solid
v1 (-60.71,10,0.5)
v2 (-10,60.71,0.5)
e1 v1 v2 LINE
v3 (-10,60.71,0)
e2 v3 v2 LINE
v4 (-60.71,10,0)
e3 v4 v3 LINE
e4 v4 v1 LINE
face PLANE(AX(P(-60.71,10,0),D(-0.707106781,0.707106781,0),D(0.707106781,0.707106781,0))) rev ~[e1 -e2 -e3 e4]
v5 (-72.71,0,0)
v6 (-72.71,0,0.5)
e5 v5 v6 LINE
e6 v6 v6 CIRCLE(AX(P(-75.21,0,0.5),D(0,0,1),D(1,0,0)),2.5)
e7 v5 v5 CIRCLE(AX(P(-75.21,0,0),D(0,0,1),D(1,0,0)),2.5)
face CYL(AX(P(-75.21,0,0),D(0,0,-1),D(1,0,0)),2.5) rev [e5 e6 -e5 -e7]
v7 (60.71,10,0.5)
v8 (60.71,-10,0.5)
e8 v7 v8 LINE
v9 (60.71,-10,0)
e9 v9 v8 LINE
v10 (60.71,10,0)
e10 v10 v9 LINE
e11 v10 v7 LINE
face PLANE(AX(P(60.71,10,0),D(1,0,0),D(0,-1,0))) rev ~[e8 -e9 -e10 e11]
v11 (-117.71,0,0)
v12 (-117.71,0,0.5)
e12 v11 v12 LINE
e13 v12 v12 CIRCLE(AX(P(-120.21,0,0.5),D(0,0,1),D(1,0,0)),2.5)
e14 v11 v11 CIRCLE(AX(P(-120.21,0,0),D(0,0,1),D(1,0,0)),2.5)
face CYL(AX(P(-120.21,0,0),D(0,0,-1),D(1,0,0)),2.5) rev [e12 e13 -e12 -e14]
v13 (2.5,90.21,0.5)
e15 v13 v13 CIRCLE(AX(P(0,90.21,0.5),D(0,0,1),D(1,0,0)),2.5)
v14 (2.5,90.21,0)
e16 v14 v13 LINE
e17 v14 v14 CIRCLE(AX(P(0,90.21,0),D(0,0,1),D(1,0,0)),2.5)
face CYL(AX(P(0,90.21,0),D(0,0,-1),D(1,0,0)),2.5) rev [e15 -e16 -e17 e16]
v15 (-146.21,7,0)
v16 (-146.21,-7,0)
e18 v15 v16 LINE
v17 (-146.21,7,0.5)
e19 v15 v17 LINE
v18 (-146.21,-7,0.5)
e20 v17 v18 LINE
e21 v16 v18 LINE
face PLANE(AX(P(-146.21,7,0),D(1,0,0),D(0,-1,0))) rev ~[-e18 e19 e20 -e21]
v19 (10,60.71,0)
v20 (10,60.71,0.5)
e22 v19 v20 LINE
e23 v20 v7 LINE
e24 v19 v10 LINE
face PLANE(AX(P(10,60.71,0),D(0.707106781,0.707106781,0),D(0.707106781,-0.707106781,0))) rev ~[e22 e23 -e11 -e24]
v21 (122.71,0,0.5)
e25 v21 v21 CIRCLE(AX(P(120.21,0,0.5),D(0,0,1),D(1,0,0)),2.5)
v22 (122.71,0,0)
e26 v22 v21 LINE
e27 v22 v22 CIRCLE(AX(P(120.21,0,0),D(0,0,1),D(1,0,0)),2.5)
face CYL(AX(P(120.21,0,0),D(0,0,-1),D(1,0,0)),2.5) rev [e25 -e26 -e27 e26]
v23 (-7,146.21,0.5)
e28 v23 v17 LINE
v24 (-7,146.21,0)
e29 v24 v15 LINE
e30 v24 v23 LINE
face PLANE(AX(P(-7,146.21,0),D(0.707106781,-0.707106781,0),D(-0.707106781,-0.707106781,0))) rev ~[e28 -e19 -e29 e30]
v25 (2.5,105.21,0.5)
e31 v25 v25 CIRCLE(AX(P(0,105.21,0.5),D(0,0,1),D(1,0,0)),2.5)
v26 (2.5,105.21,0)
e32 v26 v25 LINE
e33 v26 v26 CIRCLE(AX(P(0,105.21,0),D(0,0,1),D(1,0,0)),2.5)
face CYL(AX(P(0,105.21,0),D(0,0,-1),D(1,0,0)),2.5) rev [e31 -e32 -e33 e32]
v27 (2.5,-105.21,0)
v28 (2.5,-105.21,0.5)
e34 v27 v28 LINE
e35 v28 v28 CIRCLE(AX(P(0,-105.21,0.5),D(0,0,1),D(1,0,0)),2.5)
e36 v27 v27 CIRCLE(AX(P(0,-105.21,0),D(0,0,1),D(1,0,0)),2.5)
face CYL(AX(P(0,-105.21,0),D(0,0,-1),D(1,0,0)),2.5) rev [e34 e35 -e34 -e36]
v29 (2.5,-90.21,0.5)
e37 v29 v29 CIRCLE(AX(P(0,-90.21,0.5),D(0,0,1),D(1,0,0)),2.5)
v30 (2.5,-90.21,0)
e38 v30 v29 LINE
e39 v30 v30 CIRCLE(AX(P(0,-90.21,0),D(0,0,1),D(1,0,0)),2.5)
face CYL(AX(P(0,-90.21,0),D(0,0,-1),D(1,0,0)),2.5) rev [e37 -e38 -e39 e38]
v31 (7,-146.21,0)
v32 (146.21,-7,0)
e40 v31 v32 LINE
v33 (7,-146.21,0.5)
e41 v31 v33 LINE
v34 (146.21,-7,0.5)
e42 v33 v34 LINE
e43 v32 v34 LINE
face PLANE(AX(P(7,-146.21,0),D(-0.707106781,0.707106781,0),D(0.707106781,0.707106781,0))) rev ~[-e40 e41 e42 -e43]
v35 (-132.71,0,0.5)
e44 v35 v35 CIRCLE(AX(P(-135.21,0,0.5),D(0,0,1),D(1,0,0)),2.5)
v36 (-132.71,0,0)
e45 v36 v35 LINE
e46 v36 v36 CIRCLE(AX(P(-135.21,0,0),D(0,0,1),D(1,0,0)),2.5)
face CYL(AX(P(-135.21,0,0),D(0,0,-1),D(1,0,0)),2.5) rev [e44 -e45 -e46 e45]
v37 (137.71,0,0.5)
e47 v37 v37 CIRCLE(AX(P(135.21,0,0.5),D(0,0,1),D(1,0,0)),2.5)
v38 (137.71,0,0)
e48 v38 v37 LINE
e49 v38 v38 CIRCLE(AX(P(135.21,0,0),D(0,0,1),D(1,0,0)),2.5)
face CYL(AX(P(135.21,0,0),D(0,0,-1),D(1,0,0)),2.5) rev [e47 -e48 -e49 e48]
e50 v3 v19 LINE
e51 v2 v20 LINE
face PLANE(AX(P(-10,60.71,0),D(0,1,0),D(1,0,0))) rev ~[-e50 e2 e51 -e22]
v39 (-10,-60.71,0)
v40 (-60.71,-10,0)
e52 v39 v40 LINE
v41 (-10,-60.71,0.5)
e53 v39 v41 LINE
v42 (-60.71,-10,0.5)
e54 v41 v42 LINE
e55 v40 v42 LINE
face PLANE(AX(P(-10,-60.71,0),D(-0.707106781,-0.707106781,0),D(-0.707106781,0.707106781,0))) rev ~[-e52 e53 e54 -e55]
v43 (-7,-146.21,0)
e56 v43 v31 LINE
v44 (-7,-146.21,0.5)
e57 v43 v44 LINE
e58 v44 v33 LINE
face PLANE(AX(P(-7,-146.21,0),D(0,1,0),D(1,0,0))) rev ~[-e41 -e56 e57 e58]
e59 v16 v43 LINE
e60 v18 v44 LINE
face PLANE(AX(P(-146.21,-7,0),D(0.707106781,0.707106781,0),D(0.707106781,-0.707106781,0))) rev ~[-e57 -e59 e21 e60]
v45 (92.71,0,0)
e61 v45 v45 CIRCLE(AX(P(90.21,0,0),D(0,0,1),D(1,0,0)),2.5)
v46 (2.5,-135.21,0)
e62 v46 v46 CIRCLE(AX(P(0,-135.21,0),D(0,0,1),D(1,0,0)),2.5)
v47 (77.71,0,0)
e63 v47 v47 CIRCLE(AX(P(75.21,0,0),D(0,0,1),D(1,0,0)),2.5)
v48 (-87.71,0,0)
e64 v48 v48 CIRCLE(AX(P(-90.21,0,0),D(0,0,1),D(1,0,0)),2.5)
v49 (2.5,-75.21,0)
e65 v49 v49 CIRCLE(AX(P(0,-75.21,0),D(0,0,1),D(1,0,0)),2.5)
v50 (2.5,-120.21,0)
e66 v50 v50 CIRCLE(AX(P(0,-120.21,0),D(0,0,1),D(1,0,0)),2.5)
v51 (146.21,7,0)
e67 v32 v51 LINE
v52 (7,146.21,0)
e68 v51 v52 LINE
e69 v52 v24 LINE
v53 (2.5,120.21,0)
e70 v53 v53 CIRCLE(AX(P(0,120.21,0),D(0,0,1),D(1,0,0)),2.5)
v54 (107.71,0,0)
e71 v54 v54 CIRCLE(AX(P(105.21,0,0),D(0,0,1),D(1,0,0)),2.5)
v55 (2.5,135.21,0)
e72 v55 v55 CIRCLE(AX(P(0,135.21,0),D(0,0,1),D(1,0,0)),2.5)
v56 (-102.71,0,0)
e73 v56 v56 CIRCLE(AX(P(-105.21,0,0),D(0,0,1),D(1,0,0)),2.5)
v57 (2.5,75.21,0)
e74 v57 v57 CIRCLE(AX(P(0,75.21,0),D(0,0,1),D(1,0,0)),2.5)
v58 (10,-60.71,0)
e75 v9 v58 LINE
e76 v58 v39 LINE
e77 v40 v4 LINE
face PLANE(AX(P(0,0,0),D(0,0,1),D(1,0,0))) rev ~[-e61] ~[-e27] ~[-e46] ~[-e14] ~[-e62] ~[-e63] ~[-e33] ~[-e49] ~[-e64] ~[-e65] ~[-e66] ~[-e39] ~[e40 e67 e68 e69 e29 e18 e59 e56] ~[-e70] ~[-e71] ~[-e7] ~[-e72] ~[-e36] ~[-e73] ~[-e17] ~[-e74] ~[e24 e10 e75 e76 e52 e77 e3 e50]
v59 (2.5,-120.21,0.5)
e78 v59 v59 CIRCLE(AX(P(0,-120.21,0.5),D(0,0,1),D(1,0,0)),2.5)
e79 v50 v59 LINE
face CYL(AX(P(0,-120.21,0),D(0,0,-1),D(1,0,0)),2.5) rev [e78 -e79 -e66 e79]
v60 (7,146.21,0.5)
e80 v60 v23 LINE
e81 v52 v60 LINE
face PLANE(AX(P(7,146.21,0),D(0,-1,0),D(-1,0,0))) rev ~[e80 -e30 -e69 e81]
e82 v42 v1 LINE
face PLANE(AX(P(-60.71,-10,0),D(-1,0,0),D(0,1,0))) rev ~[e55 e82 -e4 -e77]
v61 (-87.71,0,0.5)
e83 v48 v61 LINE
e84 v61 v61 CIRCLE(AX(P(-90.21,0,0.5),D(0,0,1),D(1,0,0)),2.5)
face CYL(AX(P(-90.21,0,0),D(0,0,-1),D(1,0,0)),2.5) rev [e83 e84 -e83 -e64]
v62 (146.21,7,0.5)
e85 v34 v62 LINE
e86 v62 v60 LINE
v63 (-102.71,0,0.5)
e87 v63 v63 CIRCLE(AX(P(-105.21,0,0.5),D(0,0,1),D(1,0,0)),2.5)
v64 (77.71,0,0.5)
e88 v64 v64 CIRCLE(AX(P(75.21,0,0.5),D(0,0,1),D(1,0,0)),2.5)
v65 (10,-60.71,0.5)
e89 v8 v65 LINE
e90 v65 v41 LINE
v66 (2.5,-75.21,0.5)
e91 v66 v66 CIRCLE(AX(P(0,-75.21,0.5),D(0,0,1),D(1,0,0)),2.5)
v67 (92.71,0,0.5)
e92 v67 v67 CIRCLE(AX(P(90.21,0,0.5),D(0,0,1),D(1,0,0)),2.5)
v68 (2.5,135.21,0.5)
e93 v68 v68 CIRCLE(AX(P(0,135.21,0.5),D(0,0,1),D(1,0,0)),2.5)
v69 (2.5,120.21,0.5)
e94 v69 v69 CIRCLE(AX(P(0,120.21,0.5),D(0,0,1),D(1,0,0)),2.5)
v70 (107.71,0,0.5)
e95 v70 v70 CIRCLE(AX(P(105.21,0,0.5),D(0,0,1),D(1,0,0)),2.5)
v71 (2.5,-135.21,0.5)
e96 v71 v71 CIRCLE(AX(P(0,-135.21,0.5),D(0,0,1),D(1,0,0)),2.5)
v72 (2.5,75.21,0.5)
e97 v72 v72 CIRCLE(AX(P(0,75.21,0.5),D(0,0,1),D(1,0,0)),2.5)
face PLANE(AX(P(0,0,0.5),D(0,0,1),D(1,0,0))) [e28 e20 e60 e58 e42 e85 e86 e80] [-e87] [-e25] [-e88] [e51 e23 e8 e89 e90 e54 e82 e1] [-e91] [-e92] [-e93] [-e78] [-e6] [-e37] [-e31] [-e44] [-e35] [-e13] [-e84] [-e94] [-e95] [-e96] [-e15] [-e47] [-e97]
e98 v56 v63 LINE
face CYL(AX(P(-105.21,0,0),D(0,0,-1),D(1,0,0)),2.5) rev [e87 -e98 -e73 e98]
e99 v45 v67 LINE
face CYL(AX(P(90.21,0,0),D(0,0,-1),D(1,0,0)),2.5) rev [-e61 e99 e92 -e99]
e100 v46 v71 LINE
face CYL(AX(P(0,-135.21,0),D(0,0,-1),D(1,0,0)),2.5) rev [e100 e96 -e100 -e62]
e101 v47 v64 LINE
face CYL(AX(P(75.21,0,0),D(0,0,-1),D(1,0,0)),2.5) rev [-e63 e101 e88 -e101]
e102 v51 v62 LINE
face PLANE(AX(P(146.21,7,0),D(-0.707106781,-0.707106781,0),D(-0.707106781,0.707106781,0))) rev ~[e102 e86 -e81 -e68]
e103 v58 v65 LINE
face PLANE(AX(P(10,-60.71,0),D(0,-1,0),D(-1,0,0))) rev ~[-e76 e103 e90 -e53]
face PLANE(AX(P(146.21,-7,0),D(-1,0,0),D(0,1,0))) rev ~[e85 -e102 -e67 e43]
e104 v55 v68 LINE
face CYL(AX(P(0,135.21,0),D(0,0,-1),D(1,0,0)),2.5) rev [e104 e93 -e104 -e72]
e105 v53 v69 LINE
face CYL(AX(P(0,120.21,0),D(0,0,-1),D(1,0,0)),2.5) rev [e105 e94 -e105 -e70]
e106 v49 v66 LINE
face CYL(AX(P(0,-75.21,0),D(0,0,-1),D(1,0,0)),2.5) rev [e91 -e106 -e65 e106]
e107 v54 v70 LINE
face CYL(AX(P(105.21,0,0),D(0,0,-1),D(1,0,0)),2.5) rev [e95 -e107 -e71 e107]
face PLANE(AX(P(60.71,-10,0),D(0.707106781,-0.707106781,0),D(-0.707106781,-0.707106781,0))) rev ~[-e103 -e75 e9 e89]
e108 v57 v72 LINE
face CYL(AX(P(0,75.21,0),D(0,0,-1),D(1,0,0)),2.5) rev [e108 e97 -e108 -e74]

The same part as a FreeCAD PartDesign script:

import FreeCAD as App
import Part
import Sketcher

V = App.Vector
Q = App.Units.Quantity

doc = App.newDocument("Part")
params = doc.addObject("Spreadsheet::Sheet", "Params")
for row, (alias, value) in enumerate([
    ("sketch1_diameter", "5 mm"),
    ("sketch1_width", "14 mm"),
    ("sketch1_width2", "20 mm"),
    ("pad1_length", "0.5 mm"),
], start=1):
    params.set(f"A{row}", alias)
    params.set(f"B{row}", "=" + value)
    params.setAlias(f"B{row}", alias)

body = doc.addObject("PartDesign::Body", "Body")

sketch1 = doc.addObject("Sketcher::SketchObject", "Sketch")
body.addObject(sketch1)
sketch1.AttachmentSupport = (doc.XY_Plane, [""])
sketch1.MapMode = "FlatFace"
sketch1.addGeometry([
    Part.LineSegment(V(-7, -146.2, 0), V(7, -146.2, 0)),
    Part.LineSegment(V(7, -146.2, 0), V(146.2, -7, 0)),
    Part.LineSegment(V(146.2, -7, 0), V(146.2, 7, 0)),
    Part.LineSegment(V(146.2, 7, 0), V(7, 146.2, 0)),
    Part.LineSegment(V(7, 146.2, 0), V(-7, 146.2, 0)),
    Part.LineSegment(V(-7, 146.2, 0), V(-146.2, 7, 0)),
    Part.LineSegment(V(-146.2, 7, 0), V(-146.2, -7, 0)),
    Part.LineSegment(V(-146.2, -7, 0), V(-7, -146.2, 0)),
    Part.Circle(V(0, -135.2, 0), V(0, 0, 1), 2.5),
    Part.Circle(V(0, -120.2, 0), V(0, 0, 1), 2.5),
    Part.Circle(V(0, -105.2, 0), V(0, 0, 1), 2.5),
    Part.Circle(V(0, -90.2, 0), V(0, 0, 1), 2.5),
    Part.Circle(V(0, -75.2, 0), V(0, 0, 1), 2.5),
    Part.Circle(V(-135.2, 0, 0), V(0, 0, 1), 2.5),
    Part.Circle(V(-120.2, 0, 0), V(0, 0, 1), 2.5),
    Part.Circle(V(-105.2, 0, 0), V(0, 0, 1), 2.5),
    Part.Circle(V(-90.2, 0, 0), V(0, 0, 1), 2.5),
    Part.Circle(V(-75.2, 0, 0), V(0, 0, 1), 2.5),
    Part.LineSegment(V(10, 60.7, 0), V(60.7, 10, 0)),
    Part.LineSegment(V(60.7, 10, 0), V(60.7, -10, 0)),
    Part.LineSegment(V(60.7, -10, 0), V(10, -60.7, 0)),
    Part.LineSegment(V(10, -60.7, 0), V(-10, -60.7, 0)),
    Part.LineSegment(V(-10, -60.7, 0), V(-60.7, -10, 0)),
    Part.LineSegment(V(-60.7, -10, 0), V(-60.7, 10, 0)),
    Part.LineSegment(V(-60.7, 10, 0), V(-10, 60.7, 0)),
    Part.LineSegment(V(-10, 60.7, 0), V(10, 60.7, 0)),
    Part.Circle(V(75.2, 0, 0), V(0, 0, 1), 2.5),
    Part.Circle(V(90.2, 0, 0), V(0, 0, 1), 2.5),
    Part.Circle(V(105.2, 0, 0), V(0, 0, 1), 2.5),
    Part.Circle(V(120.2, 0, 0), V(0, 0, 1), 2.5),
    Part.Circle(V(135.2, 0, 0), V(0, 0, 1), 2.5),
    Part.Circle(V(0, 75.2, 0), V(0, 0, 1), 2.5),
    Part.Circle(V(0, 90.2, 0), V(0, 0, 1), 2.5),
    Part.Circle(V(0, 105.2, 0), V(0, 0, 1), 2.5),
    Part.Circle(V(0, 120.2, 0), V(0, 0, 1), 2.5),
    Part.Circle(V(0, 135.2, 0), V(0, 0, 1), 2.5),
], False)
sketch1.addConstraint([
    Sketcher.Constraint("Coincident", 0, 2, 1, 1),
    Sketcher.Constraint("Coincident", 1, 2, 2, 1),
    Sketcher.Constraint("Coincident", 2, 2, 3, 1),
    Sketcher.Constraint("Coincident", 3, 2, 4, 1),
    Sketcher.Constraint("Coincident", 4, 2, 5, 1),
    Sketcher.Constraint("Coincident", 5, 2, 6, 1),
    Sketcher.Constraint("Coincident", 6, 2, 7, 1),
    Sketcher.Constraint("Coincident", 7, 2, 0, 1),
    Sketcher.Constraint("Coincident", 18, 2, 19, 1),
    Sketcher.Constraint("Coincident", 19, 2, 20, 1),
    Sketcher.Constraint("Coincident", 20, 2, 21, 1),
    Sketcher.Constraint("Coincident", 21, 2, 22, 1),
    Sketcher.Constraint("Coincident", 22, 2, 23, 1),
    Sketcher.Constraint("Coincident", 23, 2, 24, 1),
    Sketcher.Constraint("Coincident", 24, 2, 25, 1),
    Sketcher.Constraint("Coincident", 25, 2, 18, 1),
    Sketcher.Constraint("Horizontal", 0),
    Sketcher.Constraint("Vertical", 2),
    Sketcher.Constraint("Horizontal", 4),
    Sketcher.Constraint("Vertical", 6),
    Sketcher.Constraint("Vertical", 19),
    Sketcher.Constraint("Horizontal", 21),
    Sketcher.Constraint("Vertical", 23),
    Sketcher.Constraint("Horizontal", 25),
    Sketcher.Constraint("Equal", 8, 9),
    Sketcher.Constraint("Equal", 9, 10),
    Sketcher.Constraint("Equal", 10, 11),
    Sketcher.Constraint("Equal", 11, 12),
    Sketcher.Constraint("Equal", 12, 13),
    Sketcher.Constraint("Equal", 13, 14),
    Sketcher.Constraint("Equal", 14, 15),
    Sketcher.Constraint("Equal", 15, 16),
    Sketcher.Constraint("Equal", 16, 17),
    Sketcher.Constraint("Equal", 17, 26),
    Sketcher.Constraint("Equal", 26, 27),
    Sketcher.Constraint("Equal", 27, 28),
    Sketcher.Constraint("Equal", 28, 29),
    Sketcher.Constraint("Equal", 29, 30),
    Sketcher.Constraint("Equal", 30, 31),
    Sketcher.Constraint("Equal", 31, 32),
    Sketcher.Constraint("Equal", 32, 33),
    Sketcher.Constraint("Equal", 33, 34),
    Sketcher.Constraint("Equal", 34, 35),
    Sketcher.Constraint("Symmetric", 17, 3, 26, 3, -1, 1),
    Sketcher.Constraint("Symmetric", 16, 3, 27, 3, -1, 1),
    Sketcher.Constraint("Symmetric", 15, 3, 28, 3, -1, 1),
    Sketcher.Constraint("Symmetric", 14, 3, 29, 3, -1, 1),
    Sketcher.Constraint("Symmetric", 13, 3, 30, 3, -1, 1),
    Sketcher.Constraint("Symmetric", 12, 3, 31, 3, -1, 1),
    Sketcher.Constraint("Symmetric", 11, 3, 32, 3, -1, 1),
    Sketcher.Constraint("Symmetric", 10, 3, 33, 3, -1, 1),
    Sketcher.Constraint("Symmetric", 9, 3, 34, 3, -1, 1),
    Sketcher.Constraint("Symmetric", 8, 3, 35, 3, -1, 1),
    Sketcher.Constraint("Symmetric", 0, 2, 4, 2, -1, 1),
    Sketcher.Constraint("Symmetric", 1, 2, 5, 2, -1, 1),
    Sketcher.Constraint("Symmetric", 18, 2, 22, 2, -1, 1),
    Sketcher.Constraint("Symmetric", 20, 2, 24, 2, -1, 1),
    Sketcher.Constraint("PointOnObject", 8, 3, -2),
    Sketcher.Constraint("PointOnObject", 9, 3, -2),
    Sketcher.Constraint("PointOnObject", 10, 3, -2),
    Sketcher.Constraint("PointOnObject", 11, 3, -2),
    Sketcher.Constraint("PointOnObject", 12, 3, -2),
    Sketcher.Constraint("PointOnObject", 13, 3, -1),
    Sketcher.Constraint("PointOnObject", 14, 3, -1),
    Sketcher.Constraint("PointOnObject", 15, 3, -1),
    Sketcher.Constraint("PointOnObject", 16, 3, -1),
    Sketcher.Constraint("PointOnObject", 17, 3, -1),
    Sketcher.Constraint("Perpendicular", 1, 3),
    Sketcher.Constraint("Perpendicular", 5, 7),
    Sketcher.Constraint("Parallel", 7, 18),
    Sketcher.Constraint("Perpendicular", 18, 20),
    Sketcher.Constraint("Perpendicular", 20, 22),
    Sketcher.Constraint("Perpendicular", 22, 24),
    Sketcher.Constraint("Horizontal", 2, 2, 5, 2),
    Sketcher.Constraint("Horizontal", 1, 2, 6, 2),
    Sketcher.Constraint("Horizontal", 19, 2, 22, 2),
    Sketcher.Constraint("Vertical", 0, 2, 3, 2),
    Sketcher.Constraint("Equal", 4, 2),
    Sketcher.Constraint("Equal", 25, 19),
    Sketcher.Constraint("Diameter", 8, Q("5 mm")),
    Sketcher.Constraint("DistanceX", 0, 1, 0, 2, Q("14 mm")),
    Sketcher.Constraint("DistanceX", 21, 2, 21, 1, Q("20 mm")),
    Sketcher.Constraint("DistanceY", 8, 3, 9, 3, Q("15 mm")),
    Sketcher.Constraint("DistanceY", 9, 3, 10, 3, Q("15 mm")),
    Sketcher.Constraint("DistanceY", 10, 3, 11, 3, Q("15 mm")),
    Sketcher.Constraint("DistanceY", 11, 3, 12, 3, Q("15 mm")),
    Sketcher.Constraint("DistanceX", 13, 3, 14, 3, Q("15 mm")),
    Sketcher.Constraint("DistanceX", 14, 3, 15, 3, Q("15 mm")),
    Sketcher.Constraint("DistanceX", 15, 3, 16, 3, Q("15 mm")),
    Sketcher.Constraint("DistanceX", 16, 3, 17, 3, Q("15 mm")),
    Sketcher.Constraint("DistanceY", 0, 2, 8, 3, Q("11 mm")),
    Sketcher.Constraint("DistanceX", 30, 3, 1, 2, Q("11 mm")),
    Sketcher.Constraint("DistanceX", 18, 2, 26, 3, Q("14.5 mm")),
    Sketcher.Constraint("DistanceY", 8, 3, -1, 1, Q("135.21 mm")),
])
sketch1.setExpression("Constraints[79]", "Params.sketch1_diameter")
sketch1.setExpression("Constraints[80]", "Params.sketch1_width")
sketch1.setExpression("Constraints[81]", "Params.sketch1_width2")
pad1 = doc.addObject("PartDesign::Pad", "Pad")
body.addObject(pad1)
pad1.Profile = sketch1
pad1.setExpression("Length", "Params.pad1_length")

doc.recompute()
